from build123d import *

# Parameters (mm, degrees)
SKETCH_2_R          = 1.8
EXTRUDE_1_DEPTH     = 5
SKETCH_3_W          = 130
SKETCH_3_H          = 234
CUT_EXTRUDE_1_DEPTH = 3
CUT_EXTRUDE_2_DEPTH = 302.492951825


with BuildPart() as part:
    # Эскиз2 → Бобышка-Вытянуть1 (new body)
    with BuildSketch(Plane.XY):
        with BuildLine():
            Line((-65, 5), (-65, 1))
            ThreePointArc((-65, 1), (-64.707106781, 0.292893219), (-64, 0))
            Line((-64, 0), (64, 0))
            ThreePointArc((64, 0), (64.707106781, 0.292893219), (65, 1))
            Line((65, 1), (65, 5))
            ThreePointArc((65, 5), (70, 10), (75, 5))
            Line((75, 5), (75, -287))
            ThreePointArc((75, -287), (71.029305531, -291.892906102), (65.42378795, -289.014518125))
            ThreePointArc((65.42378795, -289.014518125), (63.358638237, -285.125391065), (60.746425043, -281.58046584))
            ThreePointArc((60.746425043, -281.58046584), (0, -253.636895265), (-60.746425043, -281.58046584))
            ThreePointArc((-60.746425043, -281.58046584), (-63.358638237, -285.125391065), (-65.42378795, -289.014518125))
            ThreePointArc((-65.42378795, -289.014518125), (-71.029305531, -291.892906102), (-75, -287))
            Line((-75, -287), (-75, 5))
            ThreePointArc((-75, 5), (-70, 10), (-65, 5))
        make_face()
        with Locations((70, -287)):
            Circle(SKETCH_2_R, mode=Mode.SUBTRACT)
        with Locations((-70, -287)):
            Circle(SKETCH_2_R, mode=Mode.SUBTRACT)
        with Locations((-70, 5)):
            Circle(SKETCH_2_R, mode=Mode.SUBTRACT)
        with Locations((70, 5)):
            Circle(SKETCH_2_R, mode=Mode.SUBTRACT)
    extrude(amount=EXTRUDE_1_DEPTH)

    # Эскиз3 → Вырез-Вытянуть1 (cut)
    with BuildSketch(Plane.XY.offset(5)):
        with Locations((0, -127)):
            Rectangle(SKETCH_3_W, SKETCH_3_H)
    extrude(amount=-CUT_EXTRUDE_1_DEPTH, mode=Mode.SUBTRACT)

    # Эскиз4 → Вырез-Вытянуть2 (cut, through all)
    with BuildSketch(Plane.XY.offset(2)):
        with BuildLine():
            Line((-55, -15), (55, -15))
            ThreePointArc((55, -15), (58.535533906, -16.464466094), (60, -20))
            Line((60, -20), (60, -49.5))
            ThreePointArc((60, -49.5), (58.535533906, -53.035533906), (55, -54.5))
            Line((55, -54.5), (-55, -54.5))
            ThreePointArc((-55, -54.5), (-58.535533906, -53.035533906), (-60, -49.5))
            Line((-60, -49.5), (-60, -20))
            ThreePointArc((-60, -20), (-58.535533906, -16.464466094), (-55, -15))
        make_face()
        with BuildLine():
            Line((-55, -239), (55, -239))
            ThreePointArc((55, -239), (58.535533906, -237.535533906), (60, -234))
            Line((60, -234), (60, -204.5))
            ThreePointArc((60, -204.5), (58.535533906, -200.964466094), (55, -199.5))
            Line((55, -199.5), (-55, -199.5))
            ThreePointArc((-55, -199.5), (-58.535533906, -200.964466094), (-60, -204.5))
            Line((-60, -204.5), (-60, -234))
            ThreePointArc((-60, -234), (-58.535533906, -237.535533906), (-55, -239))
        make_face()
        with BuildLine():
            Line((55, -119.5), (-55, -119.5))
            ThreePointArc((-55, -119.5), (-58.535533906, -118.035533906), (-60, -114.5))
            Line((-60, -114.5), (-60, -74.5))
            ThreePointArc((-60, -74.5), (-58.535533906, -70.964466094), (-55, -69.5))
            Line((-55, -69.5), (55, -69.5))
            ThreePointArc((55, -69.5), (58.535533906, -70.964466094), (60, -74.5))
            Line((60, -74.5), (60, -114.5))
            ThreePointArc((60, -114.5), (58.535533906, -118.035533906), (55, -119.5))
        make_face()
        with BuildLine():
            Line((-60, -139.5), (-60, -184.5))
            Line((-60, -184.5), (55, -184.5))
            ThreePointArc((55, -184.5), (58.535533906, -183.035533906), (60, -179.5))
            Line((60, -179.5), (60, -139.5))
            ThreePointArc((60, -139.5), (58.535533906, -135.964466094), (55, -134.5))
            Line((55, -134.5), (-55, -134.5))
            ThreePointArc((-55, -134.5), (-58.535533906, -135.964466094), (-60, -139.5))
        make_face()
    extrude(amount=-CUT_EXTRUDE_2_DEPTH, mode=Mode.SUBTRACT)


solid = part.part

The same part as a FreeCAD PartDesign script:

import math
import FreeCAD as App
import Part
import Sketcher
from FreeCAD import Vector
Q = App.Units.Quantity

doc = App.newDocument("Part")
body = doc.addObject("PartDesign::Body", "Body")

sketch1 = doc.addObject("Sketcher::SketchObject", "Sketch")
body.addObject(sketch1)
sketch1.AttachmentSupport = (doc.XY_Plane, [""])
sketch1.MapMode = "FlatFace"
sketch1.addGeometry([
    Part.LineSegment(Vector(-65, 1, 0), Vector(-65, 5, 0)),
    Part.ArcOfCircle(Part.Circle(Vector(-70, 5, 0), Vector(0, 0, 1), 5), math.radians(0), math.radians(180)),
    Part.LineSegment(Vector(-75, 5, 0), Vector(-75, -287, 0)),
    Part.ArcOfCircle(Part.Circle(Vector(-70, -287, 0), Vector(0, 0, 1), 5), math.radians(180), math.radians(336)),
    Part.ArcOfCircle(Part.Circle(Vector(-38, -301.1, 0), Vector(0, 0, 1), 30), math.radians(139.41), math.radians(156.24)),
    Part.ArcOfCircle(Part.Circle(Vector(0, -333.6, 0), Vector(0, 0, 1), 80), math.radians(41), math.radians(139)),
    Part.ArcOfCircle(Part.Circle(Vector(38, -301.1, 0), Vector(0, 0, 1), 30), math.radians(23.76), math.radians(40.59)),
    Part.ArcOfCircle(Part.Circle(Vector(70, -287, 0), Vector(0, 0, 1), 5), math.radians(-156), math.radians(0)),
    Part.LineSegment(Vector(75, -287, 0), Vector(75, 5, 0)),
    Part.ArcOfCircle(Part.Circle(Vector(70, 5, 0), Vector(0, 0, 1), 5), math.radians(0), math.radians(180)),
    Part.LineSegment(Vector(65, 5, 0), Vector(65, 1, 0)),
    Part.ArcOfCircle(Part.Circle(Vector(64, 1, 0), Vector(0, 0, 1), 1), math.radians(-90), math.radians(0)),
    Part.LineSegment(Vector(64, 0, 0), Vector(-64, 0, 0)),
    Part.ArcOfCircle(Part.Circle(Vector(-64, 1, 0), Vector(0, 0, 1), 1), math.radians(-180), math.radians(-90)),
    Part.Circle(Vector(70, -287, 0), Vector(0, 0, 1), 1.8),
    Part.Circle(Vector(-70, -287, 0), Vector(0, 0, 1), 1.8),
    Part.Circle(Vector(70, 5, 0), Vector(0, 0, 1), 1.8),
    Part.Circle(Vector(-70, 5, 0), Vector(0, 0, 1), 1.8),
], False)
sketch1.addConstraint([
    Sketcher.Constraint("Tangent", 0, 2, 1, 1),
    Sketcher.Constraint("Tangent", 1, 2, 2, 1),
    Sketcher.Constraint("Tangent", 2, 2, 3, 1),
    Sketcher.Constraint("Tangent", 3, 2, 4, 2),
    Sketcher.Constraint("Tangent", 4, 1, 5, 2),
    Sketcher.Constraint("Tangent", 5, 1, 6, 2),
    Sketcher.Constraint("Tangent", 6, 1, 7, 1),
    Sketcher.Constraint("Tangent", 7, 2, 8, 1),
    Sketcher.Constraint("Tangent", 8, 2, 9, 1),
    Sketcher.Constraint("Tangent", 9, 2, 10, 1),
    Sketcher.Constraint("Tangent", 10, 2, 11, 2),
    Sketcher.Constraint("Tangent", 11, 1, 12, 1),
    Sketcher.Constraint("Tangent", 12, 2, 13, 2),
    Sketcher.Constraint("Tangent", 13, 1, 0, 1),
    Sketcher.Constraint("Vertical", 0),
    Sketcher.Constraint("Vertical", 2),
    Sketcher.Constraint("Vertical", 8),
    Sketcher.Constraint("Vertical", 10),
    Sketcher.Constraint("Horizontal", 12),
    Sketcher.Constraint("Coincident", 14, 3, 7, 3),
    Sketcher.Constraint("Coincident", 15, 3, 3, 3),
    Sketcher.Constraint("Coincident", 16, 3, 9, 3),
    Sketcher.Constraint("Coincident", 17, 3, 1, 3),
    Sketcher.Constraint("Equal", 1, 3),
    Sketcher.Constraint("Equal", 4, 6),
    Sketcher.Constraint("Equal", 3, 7),
    Sketcher.Constraint("Equal", 7, 9),
    Sketcher.Constraint("Equal", 11, 13),
    Sketcher.Constraint("Equal", 14, 15),
    Sketcher.Constraint("Equal", 15, 16),
    Sketcher.Constraint("Equal", 16, 17),
    Sketcher.Constraint("Symmetric", 11, 1, 12, 2, -1, 1),
    Sketcher.Constraint("Symmetric", 4, 3, 6, 3, -2),
    Sketcher.Constraint("Horizontal", 1, 3, 9, 3),
    Sketcher.Constraint("Radius", 1, Q("5 mm")),
    Sketcher.Constraint("Radius", 4, Q("30 mm")),
    Sketcher.Constraint("Radius", 5, Q("80 mm")),
    Sketcher.Constraint("Radius", 11, Q("1 mm")),
    Sketcher.Constraint("Diameter", 14, Q("3.6 mm")),
    Sketcher.Constraint("DistanceX", 12, 2, 12, 1, Q("128 mm")),
    Sketcher.Constraint("DistanceY", 0, 1, 0, 2, Q("4 mm")),
    Sketcher.Constraint("DistanceY", 2, 2, 2, 1, Q("292 mm")),
    Sketcher.Constraint("DistanceY", 3, 2, -1, 1, Q("289.014518 mm")),
])
pad1 = doc.addObject("PartDesign::Pad", "Pad")
body.addObject(pad1)
pad1.Profile = sketch1
pad1.Length = 5

sketch2 = doc.addObject("Sketcher::SketchObject", "Sketch001")
body.addObject(sketch2)
sketch2.AttachmentSupport = (doc.XY_Plane, [""])
sketch2.MapMode = "FlatFace"
sketch2.AttachmentOffset = App.Placement(Vector(0, 0, 5), App.Rotation())
sketch2.addGeometry([
    Part.LineSegment(Vector(-65, -10, 0), Vector(-65, -244, 0)),
    Part.LineSegment(Vector(-65, -244, 0), Vector(65, -244, 0)),
    Part.LineSegment(Vector(65, -244, 0), Vector(65, -10, 0)),
    Part.LineSegment(Vector(65, -10, 0), Vector(-65, -10, 0)),
], False)
sketch2.addConstraint([
    Sketcher.Constraint("Coincident", 0, 2, 1, 1),
    Sketcher.Constraint("Coincident", 1, 2, 2, 1),
    Sketcher.Constraint("Coincident", 2, 2, 3, 1),
    Sketcher.Constraint("Coincident", 3, 2, 0, 1),
    Sketcher.Constraint("Vertical", 0),
    Sketcher.Constraint("Horizontal", 1),
    Sketcher.Constraint("Vertical", 2),
    Sketcher.Constraint("Horizontal", 3),
    Sketcher.Constraint("DistanceX", 1, 1, 1, 2, Q("130 mm")),
    Sketcher.Constraint("DistanceY", 0, 2, 0, 1, Q("234 mm")),
    Sketcher.Constraint("DistanceX", 0, 2, -1, 1, Q("65 mm")),
    Sketcher.Constraint("DistanceY", 0, 2, -1, 1, Q("244 mm")),
])
pocket1 = doc.addObject("PartDesign::Pocket", "Pocket")
body.addObject(pocket1)
pocket1.Profile = sketch2
pocket1.Length = 3

sketch3 = doc.addObject("Sketcher::SketchObject", "Sketch002")
body.addObject(sketch3)
sketch3.AttachmentSupport = (doc.XY_Plane, [""])
sketch3.MapMode = "FlatFace"
sketch3.AttachmentOffset = App.Placement(Vector(0, 0, 2), App.Rotation())
sketch3.addGeometry([
    Part.LineSegment(Vector(55, -15, 0), Vector(-55, -15, 0)),
    Part.ArcOfCircle(Part.Circle(Vector(-55, -20, 0), Vector(0, 0, 1), 5), math.radians(90), math.radians(180)),
    Part.LineSegment(Vector(-60, -20, 0), Vector(-60, -50, 0)),
    Part.ArcOfCircle(Part.Circle(Vector(-55, -50, 0), Vector(0, 0, 1), 5), math.radians(180), math.radians(270)),
    Part.LineSegment(Vector(-55, -54, 0), Vector(55, -54, 0)),
    Part.ArcOfCircle(Part.Circle(Vector(55, -50, 0), Vector(0, 0, 1), 5), math.radians(-90), math.radians(0)),
    Part.LineSegment(Vector(60, -50, 0), Vector(60, -20, 0)),
    Part.ArcOfCircle(Part.Circle(Vector(55, -20, 0), Vector(0, 0, 1), 5), math.radians(0), math.radians(90)),
    Part.LineSegment(Vector(-55, -239, 0), Vector(55, -239, 0)),
    Part.ArcOfCircle(Part.Circle(Vector(55, -234, 0), Vector(0, 0, 1), 5), math.radians(-90), math.radians(0)),
    Part.LineSegment(Vector(60, -234, 0), Vector(60, -204, 0)),
    Part.ArcOfCircle(Part.Circle(Vector(55, -204, 0), Vector(0, 0, 1), 5), math.radians(0), math.radians(90)),
    Part.LineSegment(Vector(55, -200, 0), Vector(-55, -200, 0)),
    Part.ArcOfCircle(Part.Circle(Vector(-55, -204, 0), Vector(0, 0, 1), 5), math.radians(90), math.radians(180)),
    Part.LineSegment(Vector(-60, -204, 0), Vector(-60, -234, 0)),
    Part.ArcOfCircle(Part.Circle(Vector(-55, -234, 0), Vector(0, 0, 1), 5), math.radians(180), math.radians(270)),
    Part.LineSegment(Vector(-55, -120, 0), Vector(55, -120, 0)),
    Part.ArcOfCircle(Part.Circle(Vector(55, -114, 0), Vector(0, 0, 1), 5), math.radians(-90), math.radians(0)),
    Part.LineSegment(Vector(60, -114, 0), Vector(60, -74, 0)),
    Part.ArcOfCircle(Part.Circle(Vector(55, -74, 0), Vector(0, 0, 1), 5), math.radians(0), math.radians(90)),
    Part.LineSegment(Vector(55, -70, 0), Vector(-55, -70, 0)),
    Part.ArcOfCircle(Part.Circle(Vector(-55, -74, 0), Vector(0, 0, 1), 5), math.radians(90), math.radians(180)),
    Part.LineSegment(Vector(-60, -74, 0), Vector(-60, -114, 0)),
    Part.ArcOfCircle(Part.Circle(Vector(-55, -114, 0), Vector(0, 0, 1), 5), math.radians(180), math.radians(270)),
    Part.LineSegment(Vector(-60, -140, 0), Vector(-60, -184, 0)),
    Part.LineSegment(Vector(-60, -184, 0), Vector(55, -184, 0)),
    Part.ArcOfCircle(Part.Circle(Vector(55, -180, 0), Vector(0, 0, 1), 5), math.radians(-90), math.radians(0)),
    Part.LineSegment(Vector(60, -180, 0), Vector(60, -140, 0)),
    Part.ArcOfCircle(Part.Circle(Vector(55, -140, 0), Vector(0, 0, 1), 5), math.radians(0), math.radians(90)),
    Part.LineSegment(Vector(55, -134, 0), Vector(-55, -134, 0)),
    Part.ArcOfCircle(Part.Circle(Vector(-55, -140, 0), Vector(0, 0, 1), 5), math.radians(90), math.radians(180)),
], False)
sketch3.addConstraint([
    Sketcher.Constraint("Tangent", 0, 2, 1, 1),
    Sketcher.Constraint("Tangent", 1, 2, 2, 1),
    Sketcher.Constraint("Tangent", 2, 2, 3, 1),
    Sketcher.Constraint("Tangent", 3, 2, 4, 1),
    Sketcher.Constraint("Tangent", 4, 2, 5, 1),
    Sketcher.Constraint("Tangent", 5, 2, 6, 1),
    Sketcher.Constraint("Tangent", 6, 2, 7, 1),
    Sketcher.Constraint("Tangent", 7, 2, 0, 1),
    Sketcher.Constraint("Tangent", 8, 2, 9, 1),
    Sketcher.Constraint("Tangent", 9, 2, 10, 1),
    Sketcher.Constraint("Tangent", 10, 2, 11, 1),
    Sketcher.Constraint("Tangent", 11, 2, 12, 1),
    Sketcher.Constraint("Tangent", 12, 2, 13, 1),
    Sketcher.Constraint("Tangent", 13, 2, 14, 1),
    Sketcher.Constraint("Tangent", 14, 2, 15, 1),
    Sketcher.Constraint("Tangent", 15, 2, 8, 1),
    Sketcher.Constraint("Tangent", 16, 2, 17, 1),
    Sketcher.Constraint("Tangent", 17, 2, 18, 1),
    Sketcher.Constraint("Tangent", 18, 2, 19, 1),
    Sketcher.Constraint("Tangent", 19, 2, 20, 1),
    Sketcher.Constraint("Tangent", 20, 2, 21, 1),
    Sketcher.Constraint("Tangent", 21, 2, 22, 1),
    Sketcher.Constraint("Tangent", 22, 2, 23, 1),
    Sketcher.Constraint("Tangent", 23, 2, 16, 1),
    Sketcher.Constraint("Coincident", 24, 2, 25, 1),
    Sketcher.Constraint("Tangent", 25, 2, 26, 1),
    Sketcher.Constraint("Tangent", 26, 2, 27, 1),
    Sketcher.Constraint("Tangent", 27, 2, 28, 1),
    Sketcher.Constraint("Tangent", 28, 2, 29, 1),
    Sketcher.Constraint("Tangent", 29, 2, 30, 1),
    Sketcher.Constraint("Tangent", 30, 2, 24, 1),
    Sketcher.Constraint("Horizontal", 0),
    Sketcher.Constraint("Vertical", 2),
    Sketcher.Constraint("Horizontal", 4),
    Sketcher.Constraint("Vertical", 6),
    Sketcher.Constraint("Horizontal", 8),
    Sketcher.Constraint("Vertical", 10),
    Sketcher.Constraint("Horizontal", 12),
    Sketcher.Constraint("Vertical", 14),
    Sketcher.Constraint("Horizontal", 16),
    Sketcher.Constraint("Vertical", 18),
    Sketcher.Constraint("Horizontal", 20),
    Sketcher.Constraint("Vertical", 22),
    Sketcher.Constraint("Vertical", 24),
    Sketcher.Constraint("Horizontal", 25),
    Sketcher.Constraint("Vertical", 27),
    Sketcher.Constraint("Horizontal", 29),
    Sketcher.Constraint("Equal", 1, 3),
    Sketcher.Constraint("Equal", 3, 5),
    Sketcher.Constraint("Equal", 5, 7),
    Sketcher.Constraint("Equal", 7, 9),
    Sketcher.Constraint("Equal", 9, 11),
    Sketcher.Constraint("Equal", 11, 13),
    Sketcher.Constraint("Equal", 13, 15),
    Sketcher.Constraint("Equal", 15, 17),
    Sketcher.Constraint("Equal", 17, 19),
    Sketcher.Constraint("Equal", 19, 21),
    Sketcher.Constraint("Equal", 21, 23),
    Sketcher.Constraint("Equal", 23, 26),
    Sketcher.Constraint("Equal", 26, 28),
    Sketcher.Constraint("Equal", 28, 30),
    Sketcher.Constraint("Vertical", 7, 3, 9, 3),
    Sketcher.Constraint("Vertical", 3, 3, 13, 3),
    Sketcher.Constraint("Vertical", 11, 3, 17, 3),
    Sketcher.Constraint("Vertical", 15, 3, 21, 3),
    Sketcher.Constraint("Vertical", 19, 3, 26, 3),
    Sketcher.Constraint("Vertical", 23, 3, 30, 3),
    Sketcher.Constraint("Equal", 6, 10),
    Sketcher.Constraint("Equal", 22, 27),
    Sketcher.Constraint("Radius", 1, Q("5 mm")),
    Sketcher.Constraint("DistanceX", 0, 2, 0, 1, Q("110 mm")),
    Sketcher.Constraint("DistanceY", 18, 1, 18, 2, Q("40 mm")),
    Sketcher.Constraint("DistanceY", 2, 2, 2, 1, Q("29.5 mm")),
    Sketcher.Constraint("DistanceX", 1, 3, -1, 1, Q("55 mm")),
    Sketcher.Constraint("DistanceY", 1, 3, -1, 1, Q("20 mm")),
    Sketcher.Constraint("DistanceY", 9, 3, -1, 1, Q("234 mm")),
    Sketcher.Constraint("DistanceY", 17, 3, 5, 3, Q("65 mm")),
    Sketcher.Constraint("DistanceY", 11, 3, 26, 3, Q("25 mm")),
])
pocket2 = doc.addObject("PartDesign::Pocket", "Pocket001")
body.addObject(pocket2)
pocket2.Profile = sketch3
pocket2.Type = "ThroughAll"

doc.recompute()
